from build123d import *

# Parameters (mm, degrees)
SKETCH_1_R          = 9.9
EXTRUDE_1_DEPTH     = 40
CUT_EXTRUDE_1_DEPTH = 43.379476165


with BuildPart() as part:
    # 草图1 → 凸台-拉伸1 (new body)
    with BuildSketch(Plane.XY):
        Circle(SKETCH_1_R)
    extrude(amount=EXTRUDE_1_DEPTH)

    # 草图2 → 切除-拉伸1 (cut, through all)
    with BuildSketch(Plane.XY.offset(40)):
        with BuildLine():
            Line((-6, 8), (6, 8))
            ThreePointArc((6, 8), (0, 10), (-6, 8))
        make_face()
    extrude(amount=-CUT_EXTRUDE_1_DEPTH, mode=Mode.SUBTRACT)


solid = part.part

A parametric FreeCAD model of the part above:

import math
import FreeCAD as App
import Part
import Sketcher
Q = App.Units.Quantity

doc = App.newDocument("Part")
body = doc.addObject("PartDesign::Body", "Body")

# Sketch on XY plane
sketch1 = body.newObject("Sketcher::SketchObject", "Sketch")
sketch1.AttachmentSupport = (doc.getObject("XY_Plane"), [""])
sketch1.MapMode = "FlatFace"
sketch1.addGeometry(Part.Circle(App.Vector(0, 0, 0), App.Vector(0, 0, 1), 10), False)
sketch1.addConstraint(Sketcher.Constraint("Coincident", 0, 3, -1, 1))
sketch1.addConstraint(Sketcher.Constraint("Diameter", 0, Q("19.8 mm")))
pad1 = body.newObject("PartDesign::Pad", "Pad")
pad1.Profile = sketch1
pad1.Length = 40

# Sketch on XY plane
sketch2 = body.newObject("Sketcher::SketchObject", "Sketch001")
sketch2.AttachmentSupport = (doc.getObject("XY_Plane"), [""])
sketch2.MapMode = "FlatFace"
sketch2.AttachmentOffset = App.Placement(App.Vector(0, 0, 40), App.Rotation())
sketch2.addGeometry(Part.LineSegment(App.Vector(-6, 8, 0), App.Vector(6, 8, 0)), False)
sketch2.addGeometry(Part.ArcOfCircle(Part.Circle(App.Vector(0, 0, 0), App.Vector(0, 0, 1), 10), math.radians(53), math.radians(127)), False)
sketch2.addConstraint(Sketcher.Constraint("Coincident", 0, 1, 1, 2))
sketch2.addConstraint(Sketcher.Constraint("Coincident", 1, 1, 0, 2))
sketch2.addConstraint(Sketcher.Constraint("Horizontal", 0))
sketch2.addConstraint(Sketcher.Constraint("Coincident", 1, 3, -1, 1))
sketch2.addConstraint(Sketcher.Constraint("Radius", 1, Q("10 mm")))
sketch2.addConstraint(Sketcher.Constraint("DistanceX", 0, 1, 0, 2, Q("12 mm")))
pocket1 = body.newObject("PartDesign::Pocket", "Pocket")
pocket1.Profile = sketch2
pocket1.Type = "ThroughAll"

doc.recompute()
